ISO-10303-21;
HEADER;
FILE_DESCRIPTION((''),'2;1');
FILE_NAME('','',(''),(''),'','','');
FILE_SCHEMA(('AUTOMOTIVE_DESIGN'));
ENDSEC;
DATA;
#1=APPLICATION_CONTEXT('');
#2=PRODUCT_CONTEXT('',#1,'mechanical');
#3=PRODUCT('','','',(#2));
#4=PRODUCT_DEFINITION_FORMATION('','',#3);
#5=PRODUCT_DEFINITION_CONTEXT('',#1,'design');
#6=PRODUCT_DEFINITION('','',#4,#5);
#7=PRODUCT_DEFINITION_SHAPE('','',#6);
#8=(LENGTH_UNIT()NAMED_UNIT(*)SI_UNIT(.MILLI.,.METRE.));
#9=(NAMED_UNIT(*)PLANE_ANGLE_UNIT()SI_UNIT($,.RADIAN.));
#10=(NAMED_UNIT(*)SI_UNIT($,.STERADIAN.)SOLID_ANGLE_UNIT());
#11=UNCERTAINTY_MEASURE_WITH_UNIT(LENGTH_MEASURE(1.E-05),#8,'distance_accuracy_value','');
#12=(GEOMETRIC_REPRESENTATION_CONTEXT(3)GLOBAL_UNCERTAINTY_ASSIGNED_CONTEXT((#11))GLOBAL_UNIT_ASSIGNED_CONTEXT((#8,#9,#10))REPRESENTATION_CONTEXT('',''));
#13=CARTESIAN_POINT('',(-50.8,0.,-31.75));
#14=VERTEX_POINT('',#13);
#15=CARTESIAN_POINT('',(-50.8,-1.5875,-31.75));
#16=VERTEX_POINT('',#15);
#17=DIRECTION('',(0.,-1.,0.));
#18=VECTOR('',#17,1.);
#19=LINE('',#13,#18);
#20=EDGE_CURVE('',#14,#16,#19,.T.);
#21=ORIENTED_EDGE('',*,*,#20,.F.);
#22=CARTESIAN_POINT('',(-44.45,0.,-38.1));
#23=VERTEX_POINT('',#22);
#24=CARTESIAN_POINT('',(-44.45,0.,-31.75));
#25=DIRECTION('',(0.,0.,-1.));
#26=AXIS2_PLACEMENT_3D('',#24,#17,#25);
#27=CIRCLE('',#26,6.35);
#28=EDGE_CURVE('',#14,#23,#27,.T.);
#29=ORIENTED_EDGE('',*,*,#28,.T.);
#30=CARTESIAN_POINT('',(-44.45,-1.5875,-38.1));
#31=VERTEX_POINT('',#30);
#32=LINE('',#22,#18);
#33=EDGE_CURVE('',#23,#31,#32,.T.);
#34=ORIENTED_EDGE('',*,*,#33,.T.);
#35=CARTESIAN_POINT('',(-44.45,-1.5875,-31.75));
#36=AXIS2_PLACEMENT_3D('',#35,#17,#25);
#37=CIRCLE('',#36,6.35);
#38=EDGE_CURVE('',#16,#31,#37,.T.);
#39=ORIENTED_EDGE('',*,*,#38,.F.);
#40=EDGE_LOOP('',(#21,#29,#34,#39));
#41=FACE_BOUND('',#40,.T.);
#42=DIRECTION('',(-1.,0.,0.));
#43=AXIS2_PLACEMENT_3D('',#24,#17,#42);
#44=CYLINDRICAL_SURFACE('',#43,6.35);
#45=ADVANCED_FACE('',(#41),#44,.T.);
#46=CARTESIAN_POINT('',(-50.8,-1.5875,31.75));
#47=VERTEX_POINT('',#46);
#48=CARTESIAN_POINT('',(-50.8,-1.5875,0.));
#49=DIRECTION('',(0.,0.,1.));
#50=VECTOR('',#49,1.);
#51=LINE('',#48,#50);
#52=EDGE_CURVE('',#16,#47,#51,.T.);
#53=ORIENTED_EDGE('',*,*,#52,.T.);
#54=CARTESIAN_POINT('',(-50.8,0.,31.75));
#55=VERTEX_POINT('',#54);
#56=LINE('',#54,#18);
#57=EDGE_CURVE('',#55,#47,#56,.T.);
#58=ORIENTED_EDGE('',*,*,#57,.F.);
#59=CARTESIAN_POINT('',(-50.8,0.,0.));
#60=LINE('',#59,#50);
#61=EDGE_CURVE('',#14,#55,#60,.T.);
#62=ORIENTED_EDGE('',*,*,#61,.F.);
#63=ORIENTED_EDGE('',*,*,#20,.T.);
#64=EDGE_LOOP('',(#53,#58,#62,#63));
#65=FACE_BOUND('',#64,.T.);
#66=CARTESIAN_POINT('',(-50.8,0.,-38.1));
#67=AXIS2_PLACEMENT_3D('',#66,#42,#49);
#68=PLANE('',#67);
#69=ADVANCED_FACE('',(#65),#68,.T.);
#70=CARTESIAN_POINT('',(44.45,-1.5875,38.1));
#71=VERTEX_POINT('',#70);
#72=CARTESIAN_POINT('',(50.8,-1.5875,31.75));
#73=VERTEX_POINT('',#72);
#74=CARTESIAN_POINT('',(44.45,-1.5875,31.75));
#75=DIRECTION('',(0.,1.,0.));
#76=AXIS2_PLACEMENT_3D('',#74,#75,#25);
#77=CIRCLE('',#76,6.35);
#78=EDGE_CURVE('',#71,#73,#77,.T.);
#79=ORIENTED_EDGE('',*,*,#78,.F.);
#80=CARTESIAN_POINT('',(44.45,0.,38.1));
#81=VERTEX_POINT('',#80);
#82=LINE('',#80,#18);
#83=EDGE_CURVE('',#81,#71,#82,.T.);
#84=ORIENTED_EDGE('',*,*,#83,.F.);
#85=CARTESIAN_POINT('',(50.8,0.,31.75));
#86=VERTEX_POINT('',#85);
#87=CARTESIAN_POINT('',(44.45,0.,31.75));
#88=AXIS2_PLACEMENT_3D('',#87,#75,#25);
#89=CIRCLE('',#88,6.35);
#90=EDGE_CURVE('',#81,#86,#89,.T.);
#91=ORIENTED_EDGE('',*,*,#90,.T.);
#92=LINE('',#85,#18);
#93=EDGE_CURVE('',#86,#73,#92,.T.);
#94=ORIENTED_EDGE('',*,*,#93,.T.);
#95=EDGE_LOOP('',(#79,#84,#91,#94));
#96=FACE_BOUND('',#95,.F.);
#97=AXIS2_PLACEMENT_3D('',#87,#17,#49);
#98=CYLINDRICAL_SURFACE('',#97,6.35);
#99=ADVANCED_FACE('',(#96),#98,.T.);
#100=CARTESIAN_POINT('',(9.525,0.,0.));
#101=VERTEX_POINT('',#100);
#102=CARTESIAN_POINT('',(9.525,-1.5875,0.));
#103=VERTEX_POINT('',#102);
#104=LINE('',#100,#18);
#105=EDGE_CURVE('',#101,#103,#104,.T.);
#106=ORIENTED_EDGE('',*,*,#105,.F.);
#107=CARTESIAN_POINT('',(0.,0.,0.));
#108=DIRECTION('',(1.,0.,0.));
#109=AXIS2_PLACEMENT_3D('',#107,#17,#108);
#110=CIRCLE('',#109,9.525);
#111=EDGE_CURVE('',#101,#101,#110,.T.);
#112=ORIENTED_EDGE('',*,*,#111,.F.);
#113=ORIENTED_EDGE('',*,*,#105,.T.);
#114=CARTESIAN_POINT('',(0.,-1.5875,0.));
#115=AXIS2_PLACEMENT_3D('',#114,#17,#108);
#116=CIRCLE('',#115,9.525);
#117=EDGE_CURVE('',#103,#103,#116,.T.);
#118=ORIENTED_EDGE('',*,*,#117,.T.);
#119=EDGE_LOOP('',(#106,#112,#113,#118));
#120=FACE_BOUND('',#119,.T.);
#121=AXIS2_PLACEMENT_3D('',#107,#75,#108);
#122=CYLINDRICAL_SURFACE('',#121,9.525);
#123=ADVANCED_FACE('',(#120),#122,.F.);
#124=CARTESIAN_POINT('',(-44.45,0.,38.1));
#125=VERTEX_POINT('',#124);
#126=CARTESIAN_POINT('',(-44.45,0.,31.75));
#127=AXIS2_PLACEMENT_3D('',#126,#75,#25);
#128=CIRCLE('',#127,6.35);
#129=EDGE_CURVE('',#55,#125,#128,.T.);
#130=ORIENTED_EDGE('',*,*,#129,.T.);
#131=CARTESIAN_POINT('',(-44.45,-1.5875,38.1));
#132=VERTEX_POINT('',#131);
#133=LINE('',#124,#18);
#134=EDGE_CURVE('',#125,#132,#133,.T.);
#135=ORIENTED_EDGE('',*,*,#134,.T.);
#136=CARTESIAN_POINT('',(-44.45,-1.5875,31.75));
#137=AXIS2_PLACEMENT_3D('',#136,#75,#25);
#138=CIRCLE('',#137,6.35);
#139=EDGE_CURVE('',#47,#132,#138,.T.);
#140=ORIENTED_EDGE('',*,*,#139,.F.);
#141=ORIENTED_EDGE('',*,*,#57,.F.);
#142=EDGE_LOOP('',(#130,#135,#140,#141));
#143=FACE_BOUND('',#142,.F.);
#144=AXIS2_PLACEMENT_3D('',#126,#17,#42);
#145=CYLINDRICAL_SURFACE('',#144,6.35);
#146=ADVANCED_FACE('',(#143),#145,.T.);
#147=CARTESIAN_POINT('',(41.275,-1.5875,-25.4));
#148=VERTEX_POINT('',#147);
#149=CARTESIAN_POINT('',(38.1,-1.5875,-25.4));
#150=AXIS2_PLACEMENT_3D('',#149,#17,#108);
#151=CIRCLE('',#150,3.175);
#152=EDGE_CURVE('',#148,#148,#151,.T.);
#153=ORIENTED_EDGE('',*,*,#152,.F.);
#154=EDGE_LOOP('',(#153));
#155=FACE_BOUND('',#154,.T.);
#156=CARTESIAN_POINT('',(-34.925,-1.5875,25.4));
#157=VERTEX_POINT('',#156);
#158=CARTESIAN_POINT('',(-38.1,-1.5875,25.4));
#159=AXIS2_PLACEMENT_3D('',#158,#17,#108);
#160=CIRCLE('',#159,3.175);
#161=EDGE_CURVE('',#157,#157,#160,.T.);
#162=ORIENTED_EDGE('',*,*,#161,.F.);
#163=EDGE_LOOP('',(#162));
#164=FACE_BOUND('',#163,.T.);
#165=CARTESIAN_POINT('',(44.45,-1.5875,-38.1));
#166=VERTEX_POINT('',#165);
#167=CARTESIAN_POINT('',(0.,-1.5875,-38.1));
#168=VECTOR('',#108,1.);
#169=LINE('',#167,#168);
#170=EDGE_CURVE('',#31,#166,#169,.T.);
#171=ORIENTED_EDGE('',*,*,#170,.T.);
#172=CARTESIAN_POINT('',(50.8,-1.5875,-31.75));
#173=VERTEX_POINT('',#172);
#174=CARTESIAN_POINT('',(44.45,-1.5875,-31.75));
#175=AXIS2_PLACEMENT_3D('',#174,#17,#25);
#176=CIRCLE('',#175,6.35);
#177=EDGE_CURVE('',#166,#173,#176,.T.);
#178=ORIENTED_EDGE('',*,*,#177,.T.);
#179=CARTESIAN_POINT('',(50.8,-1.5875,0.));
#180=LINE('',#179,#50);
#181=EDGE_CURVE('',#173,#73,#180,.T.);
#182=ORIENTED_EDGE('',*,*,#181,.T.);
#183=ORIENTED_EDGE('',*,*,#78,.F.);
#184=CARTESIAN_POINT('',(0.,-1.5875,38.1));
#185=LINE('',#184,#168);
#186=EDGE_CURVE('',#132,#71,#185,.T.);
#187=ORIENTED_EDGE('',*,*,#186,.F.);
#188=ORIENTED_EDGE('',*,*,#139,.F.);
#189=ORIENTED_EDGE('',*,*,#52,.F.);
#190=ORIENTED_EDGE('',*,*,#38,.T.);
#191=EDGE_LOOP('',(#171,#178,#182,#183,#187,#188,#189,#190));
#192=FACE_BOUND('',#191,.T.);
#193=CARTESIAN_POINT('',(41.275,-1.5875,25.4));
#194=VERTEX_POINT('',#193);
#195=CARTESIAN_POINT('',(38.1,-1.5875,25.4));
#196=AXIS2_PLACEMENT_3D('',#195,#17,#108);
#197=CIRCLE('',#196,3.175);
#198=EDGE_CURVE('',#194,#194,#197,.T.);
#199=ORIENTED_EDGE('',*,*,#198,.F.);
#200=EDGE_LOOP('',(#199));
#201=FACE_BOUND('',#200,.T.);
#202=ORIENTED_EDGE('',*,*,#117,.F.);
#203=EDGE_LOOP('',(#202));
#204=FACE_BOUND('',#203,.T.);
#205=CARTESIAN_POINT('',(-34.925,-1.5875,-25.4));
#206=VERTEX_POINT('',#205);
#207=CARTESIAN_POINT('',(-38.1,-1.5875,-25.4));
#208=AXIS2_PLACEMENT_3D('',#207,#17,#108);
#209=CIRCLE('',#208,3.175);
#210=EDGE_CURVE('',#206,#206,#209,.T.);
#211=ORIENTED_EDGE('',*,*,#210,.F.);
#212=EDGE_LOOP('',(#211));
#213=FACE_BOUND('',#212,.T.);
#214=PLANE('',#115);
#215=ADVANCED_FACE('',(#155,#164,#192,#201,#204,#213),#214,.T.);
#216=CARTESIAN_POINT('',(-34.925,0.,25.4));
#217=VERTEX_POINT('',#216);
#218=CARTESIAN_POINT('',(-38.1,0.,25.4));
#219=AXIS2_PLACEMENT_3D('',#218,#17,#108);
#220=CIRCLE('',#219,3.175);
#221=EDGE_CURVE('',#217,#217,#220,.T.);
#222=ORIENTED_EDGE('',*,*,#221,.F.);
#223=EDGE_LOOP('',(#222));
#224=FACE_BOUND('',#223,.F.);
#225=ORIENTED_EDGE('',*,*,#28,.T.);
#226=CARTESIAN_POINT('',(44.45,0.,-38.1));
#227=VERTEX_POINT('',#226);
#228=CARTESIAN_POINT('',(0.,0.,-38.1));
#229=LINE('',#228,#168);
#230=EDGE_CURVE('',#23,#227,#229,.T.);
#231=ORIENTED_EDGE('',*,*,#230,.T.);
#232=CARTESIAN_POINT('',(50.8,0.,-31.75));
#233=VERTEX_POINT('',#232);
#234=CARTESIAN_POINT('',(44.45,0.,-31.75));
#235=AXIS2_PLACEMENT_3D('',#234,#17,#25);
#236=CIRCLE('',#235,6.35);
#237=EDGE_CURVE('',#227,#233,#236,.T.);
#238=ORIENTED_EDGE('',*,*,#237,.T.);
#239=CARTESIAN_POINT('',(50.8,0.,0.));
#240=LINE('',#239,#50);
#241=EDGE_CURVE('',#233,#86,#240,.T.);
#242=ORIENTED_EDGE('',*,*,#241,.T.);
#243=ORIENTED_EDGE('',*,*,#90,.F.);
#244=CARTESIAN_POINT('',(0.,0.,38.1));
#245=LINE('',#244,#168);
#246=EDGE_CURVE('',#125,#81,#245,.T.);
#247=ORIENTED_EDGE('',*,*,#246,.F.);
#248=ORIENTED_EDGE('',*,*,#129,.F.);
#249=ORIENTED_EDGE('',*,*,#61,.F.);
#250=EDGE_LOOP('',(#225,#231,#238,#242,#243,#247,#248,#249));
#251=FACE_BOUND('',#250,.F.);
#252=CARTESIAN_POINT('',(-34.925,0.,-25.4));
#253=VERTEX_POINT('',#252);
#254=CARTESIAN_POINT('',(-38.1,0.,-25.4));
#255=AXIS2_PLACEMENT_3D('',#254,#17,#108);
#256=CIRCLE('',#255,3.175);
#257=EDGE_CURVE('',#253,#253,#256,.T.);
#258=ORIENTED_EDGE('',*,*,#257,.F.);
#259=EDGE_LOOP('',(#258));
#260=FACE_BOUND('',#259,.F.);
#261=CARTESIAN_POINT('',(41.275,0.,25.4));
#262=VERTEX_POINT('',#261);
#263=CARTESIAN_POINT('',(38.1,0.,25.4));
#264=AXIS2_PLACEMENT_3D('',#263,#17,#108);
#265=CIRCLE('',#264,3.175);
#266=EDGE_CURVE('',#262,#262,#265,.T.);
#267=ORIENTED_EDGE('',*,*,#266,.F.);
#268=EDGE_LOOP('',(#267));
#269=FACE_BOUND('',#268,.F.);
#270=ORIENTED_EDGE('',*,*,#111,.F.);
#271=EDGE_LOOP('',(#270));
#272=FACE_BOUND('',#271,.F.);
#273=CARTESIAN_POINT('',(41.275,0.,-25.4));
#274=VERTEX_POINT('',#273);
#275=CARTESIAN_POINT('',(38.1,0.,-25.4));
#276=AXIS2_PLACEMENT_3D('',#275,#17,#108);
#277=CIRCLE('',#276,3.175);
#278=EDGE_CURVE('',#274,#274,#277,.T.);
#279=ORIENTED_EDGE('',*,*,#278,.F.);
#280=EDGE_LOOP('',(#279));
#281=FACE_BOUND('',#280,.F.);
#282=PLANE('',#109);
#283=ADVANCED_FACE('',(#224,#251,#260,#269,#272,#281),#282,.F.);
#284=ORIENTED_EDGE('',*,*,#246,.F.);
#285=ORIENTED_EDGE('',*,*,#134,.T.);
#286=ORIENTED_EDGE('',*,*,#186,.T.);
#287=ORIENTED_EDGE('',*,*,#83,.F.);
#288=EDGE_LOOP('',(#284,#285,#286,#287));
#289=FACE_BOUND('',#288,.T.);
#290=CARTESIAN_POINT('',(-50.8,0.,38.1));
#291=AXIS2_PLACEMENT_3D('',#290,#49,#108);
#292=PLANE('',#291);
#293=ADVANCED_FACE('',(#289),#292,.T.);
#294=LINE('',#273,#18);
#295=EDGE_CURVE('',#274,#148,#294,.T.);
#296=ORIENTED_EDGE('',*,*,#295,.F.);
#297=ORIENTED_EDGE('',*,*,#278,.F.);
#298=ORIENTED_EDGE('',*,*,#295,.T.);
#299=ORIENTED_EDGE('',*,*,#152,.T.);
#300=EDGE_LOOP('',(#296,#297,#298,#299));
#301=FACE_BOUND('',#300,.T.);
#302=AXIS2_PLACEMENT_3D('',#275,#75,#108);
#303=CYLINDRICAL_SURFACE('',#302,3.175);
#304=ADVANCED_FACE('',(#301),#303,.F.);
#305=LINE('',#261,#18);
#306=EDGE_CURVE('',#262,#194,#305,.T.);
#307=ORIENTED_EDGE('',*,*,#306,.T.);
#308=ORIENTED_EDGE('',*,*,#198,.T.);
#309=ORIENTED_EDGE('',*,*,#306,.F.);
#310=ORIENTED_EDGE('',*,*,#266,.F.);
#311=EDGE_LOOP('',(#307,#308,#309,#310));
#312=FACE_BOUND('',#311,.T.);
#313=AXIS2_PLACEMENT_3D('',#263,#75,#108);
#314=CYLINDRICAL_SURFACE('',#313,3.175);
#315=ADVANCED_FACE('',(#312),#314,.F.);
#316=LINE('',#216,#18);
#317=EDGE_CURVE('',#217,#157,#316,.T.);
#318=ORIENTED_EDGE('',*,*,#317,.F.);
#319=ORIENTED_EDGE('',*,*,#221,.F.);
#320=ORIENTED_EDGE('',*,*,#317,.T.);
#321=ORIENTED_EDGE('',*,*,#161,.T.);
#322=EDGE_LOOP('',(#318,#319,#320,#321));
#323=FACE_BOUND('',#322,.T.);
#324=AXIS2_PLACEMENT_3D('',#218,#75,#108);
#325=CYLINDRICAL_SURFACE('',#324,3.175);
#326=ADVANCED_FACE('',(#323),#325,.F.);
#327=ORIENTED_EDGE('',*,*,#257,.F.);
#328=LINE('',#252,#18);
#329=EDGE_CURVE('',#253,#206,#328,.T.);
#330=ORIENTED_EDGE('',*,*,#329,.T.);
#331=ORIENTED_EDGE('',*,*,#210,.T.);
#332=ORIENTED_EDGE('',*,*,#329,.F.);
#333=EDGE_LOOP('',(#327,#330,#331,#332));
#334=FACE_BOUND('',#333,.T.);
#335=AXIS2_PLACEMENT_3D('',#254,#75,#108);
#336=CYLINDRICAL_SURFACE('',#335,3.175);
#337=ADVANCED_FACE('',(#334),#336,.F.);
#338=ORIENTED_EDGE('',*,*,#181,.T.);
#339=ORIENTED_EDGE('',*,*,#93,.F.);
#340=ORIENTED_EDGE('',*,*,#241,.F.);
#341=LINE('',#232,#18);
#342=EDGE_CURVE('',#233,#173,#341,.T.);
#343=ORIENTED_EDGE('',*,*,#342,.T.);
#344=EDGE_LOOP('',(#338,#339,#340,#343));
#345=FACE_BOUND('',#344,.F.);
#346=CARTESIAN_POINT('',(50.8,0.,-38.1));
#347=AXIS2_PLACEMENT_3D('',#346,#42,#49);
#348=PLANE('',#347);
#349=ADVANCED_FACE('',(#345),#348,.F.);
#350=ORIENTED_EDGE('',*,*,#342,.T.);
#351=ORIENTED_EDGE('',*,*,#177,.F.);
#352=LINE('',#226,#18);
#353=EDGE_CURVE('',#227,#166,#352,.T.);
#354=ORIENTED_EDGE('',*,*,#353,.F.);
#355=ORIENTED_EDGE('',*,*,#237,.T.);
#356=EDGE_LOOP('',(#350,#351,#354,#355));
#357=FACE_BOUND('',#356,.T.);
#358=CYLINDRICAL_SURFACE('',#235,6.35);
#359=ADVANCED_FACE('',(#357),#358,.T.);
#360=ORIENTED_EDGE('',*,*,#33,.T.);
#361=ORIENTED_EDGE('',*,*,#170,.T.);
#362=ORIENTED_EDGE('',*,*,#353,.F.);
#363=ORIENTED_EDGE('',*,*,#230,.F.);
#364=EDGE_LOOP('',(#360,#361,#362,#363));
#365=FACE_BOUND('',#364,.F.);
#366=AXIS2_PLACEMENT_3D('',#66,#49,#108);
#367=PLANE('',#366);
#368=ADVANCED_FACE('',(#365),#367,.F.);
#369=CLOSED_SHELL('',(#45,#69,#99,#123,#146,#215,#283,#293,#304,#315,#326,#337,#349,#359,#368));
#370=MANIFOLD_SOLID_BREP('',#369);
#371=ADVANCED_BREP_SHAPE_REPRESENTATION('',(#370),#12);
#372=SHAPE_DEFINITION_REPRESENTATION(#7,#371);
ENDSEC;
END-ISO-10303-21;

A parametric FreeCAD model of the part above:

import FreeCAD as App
import Part
import Sketcher
from FreeCAD import Vector
Q = App.Units.Quantity


def edges_at(feature, points):
    """Names of the edges that pass closest to the given points."""
    edges = feature.Shape.Edges
    near = lambda p: min(range(len(edges)), key=lambda i: edges[i].distToShape(Part.Vertex(*p))[0])
    return sorted({f"Edge{near(p) + 1}" for p in points})


def add_polygon(sketch, points):
    """Adds a closed chain of lines whose ends are joined by coincident constraints."""
    first, n = sketch.GeometryCount, len(points)
    for a, b in zip(points, points[1:] + points[:1]):
        sketch.addGeometry(Part.LineSegment(App.Vector(*a, 0), App.Vector(*b, 0)), False)
    for i in range(n):
        sketch.addConstraint(Sketcher.Constraint("Coincident", first + i, 2, first + (i + 1) % n, 1))

doc = App.newDocument("Part")
body = doc.addObject("PartDesign::Body", "Body")

# Sketch on XZ plane
sketch1 = body.newObject("Sketcher::SketchObject", "Sketch")
sketch1.AttachmentSupport = (doc.getObject("XZ_Plane"), [""])
sketch1.MapMode = "FlatFace"
add_polygon(sketch1, [(-50.8, 38.1), (-50.8, -38.1), (50.8, -38.1), (50.8, 38.1)])  # lines 0-3
sketch1.addGeometry(Part.Circle(Vector(-38.1, -25.4, 0), Vector(0, 0, 1), 3.175), False)  # 4
sketch1.addGeometry(Part.Circle(Vector(38.1, -25.4, 0), Vector(0, 0, 1), 3.175), False)  # 5
sketch1.addGeometry(Part.Circle(Vector(0, 0, 0), Vector(0, 0, 1), 9.525), False)  # 6
sketch1.addGeometry(Part.Circle(Vector(-38.1, 25.4, 0), Vector(0, 0, 1), 3.175), False)  # 7
sketch1.addGeometry(Part.Circle(Vector(38.1, 25.4, 0), Vector(0, 0, 1), 3.175), False)  # 8
sketch1.addConstraint(Sketcher.Constraint("Vertical", 0))
sketch1.addConstraint(Sketcher.Constraint("Horizontal", 1))
sketch1.addConstraint(Sketcher.Constraint("Vertical", 2))
sketch1.addConstraint(Sketcher.Constraint("Horizontal", 3))
sketch1.addConstraint(Sketcher.Constraint("Coincident", 6, 3, -1, 1))
sketch1.addConstraint(Sketcher.Constraint("Equal", 4, 5))
sketch1.addConstraint(Sketcher.Constraint("Equal", 5, 7))
sketch1.addConstraint(Sketcher.Constraint("Equal", 7, 8))
sketch1.addConstraint(Sketcher.Constraint("Symmetric", 5, 3, 7, 3, -1, 1))
sketch1.addConstraint(Sketcher.Constraint("Symmetric", 4, 3, 8, 3, -1, 1))
sketch1.addConstraint(Sketcher.Constraint("Symmetric", 0, 2, 2, 2, -1, 1))
sketch1.addConstraint(Sketcher.Constraint("Symmetric", 4, 3, 5, 3, -2))
sketch1.addConstraint(Sketcher.Constraint("Diameter", 4, Q("0.25 in")))
sketch1.addConstraint(Sketcher.Constraint("Diameter", 6, Q("0.75 in")))
sketch1.addConstraint(Sketcher.Constraint("DistanceX", 1, 1, 1, 2, Q("4 in")))
sketch1.addConstraint(Sketcher.Constraint("DistanceY", 0, 2, 0, 1, Q("3 in")))
sketch1.addConstraint(Sketcher.Constraint("DistanceY", 4, 3, -1, 1, Q("1 in")))
sketch1.addConstraint(Sketcher.Constraint("DistanceX", 4, 3, 5, 3, Q("3 in")))
pad1 = body.newObject("PartDesign::Pad", "Pad")
pad1.Profile = sketch1
pad1.Length = Q("0.0625 in")
doc.recompute()

fillet = body.newObject("PartDesign::Fillet", "Fillet")
fillet.Base = (pad1, edges_at(pad1, [
    (50.8, -0.794, 38.1),
    (50.8, -0.794, -38.1),
    (-50.8, -0.794, -38.1),
    (-50.8, -0.794, 38.1),
]))
fillet.Radius = Q("0.25 in")

doc.recompute()
